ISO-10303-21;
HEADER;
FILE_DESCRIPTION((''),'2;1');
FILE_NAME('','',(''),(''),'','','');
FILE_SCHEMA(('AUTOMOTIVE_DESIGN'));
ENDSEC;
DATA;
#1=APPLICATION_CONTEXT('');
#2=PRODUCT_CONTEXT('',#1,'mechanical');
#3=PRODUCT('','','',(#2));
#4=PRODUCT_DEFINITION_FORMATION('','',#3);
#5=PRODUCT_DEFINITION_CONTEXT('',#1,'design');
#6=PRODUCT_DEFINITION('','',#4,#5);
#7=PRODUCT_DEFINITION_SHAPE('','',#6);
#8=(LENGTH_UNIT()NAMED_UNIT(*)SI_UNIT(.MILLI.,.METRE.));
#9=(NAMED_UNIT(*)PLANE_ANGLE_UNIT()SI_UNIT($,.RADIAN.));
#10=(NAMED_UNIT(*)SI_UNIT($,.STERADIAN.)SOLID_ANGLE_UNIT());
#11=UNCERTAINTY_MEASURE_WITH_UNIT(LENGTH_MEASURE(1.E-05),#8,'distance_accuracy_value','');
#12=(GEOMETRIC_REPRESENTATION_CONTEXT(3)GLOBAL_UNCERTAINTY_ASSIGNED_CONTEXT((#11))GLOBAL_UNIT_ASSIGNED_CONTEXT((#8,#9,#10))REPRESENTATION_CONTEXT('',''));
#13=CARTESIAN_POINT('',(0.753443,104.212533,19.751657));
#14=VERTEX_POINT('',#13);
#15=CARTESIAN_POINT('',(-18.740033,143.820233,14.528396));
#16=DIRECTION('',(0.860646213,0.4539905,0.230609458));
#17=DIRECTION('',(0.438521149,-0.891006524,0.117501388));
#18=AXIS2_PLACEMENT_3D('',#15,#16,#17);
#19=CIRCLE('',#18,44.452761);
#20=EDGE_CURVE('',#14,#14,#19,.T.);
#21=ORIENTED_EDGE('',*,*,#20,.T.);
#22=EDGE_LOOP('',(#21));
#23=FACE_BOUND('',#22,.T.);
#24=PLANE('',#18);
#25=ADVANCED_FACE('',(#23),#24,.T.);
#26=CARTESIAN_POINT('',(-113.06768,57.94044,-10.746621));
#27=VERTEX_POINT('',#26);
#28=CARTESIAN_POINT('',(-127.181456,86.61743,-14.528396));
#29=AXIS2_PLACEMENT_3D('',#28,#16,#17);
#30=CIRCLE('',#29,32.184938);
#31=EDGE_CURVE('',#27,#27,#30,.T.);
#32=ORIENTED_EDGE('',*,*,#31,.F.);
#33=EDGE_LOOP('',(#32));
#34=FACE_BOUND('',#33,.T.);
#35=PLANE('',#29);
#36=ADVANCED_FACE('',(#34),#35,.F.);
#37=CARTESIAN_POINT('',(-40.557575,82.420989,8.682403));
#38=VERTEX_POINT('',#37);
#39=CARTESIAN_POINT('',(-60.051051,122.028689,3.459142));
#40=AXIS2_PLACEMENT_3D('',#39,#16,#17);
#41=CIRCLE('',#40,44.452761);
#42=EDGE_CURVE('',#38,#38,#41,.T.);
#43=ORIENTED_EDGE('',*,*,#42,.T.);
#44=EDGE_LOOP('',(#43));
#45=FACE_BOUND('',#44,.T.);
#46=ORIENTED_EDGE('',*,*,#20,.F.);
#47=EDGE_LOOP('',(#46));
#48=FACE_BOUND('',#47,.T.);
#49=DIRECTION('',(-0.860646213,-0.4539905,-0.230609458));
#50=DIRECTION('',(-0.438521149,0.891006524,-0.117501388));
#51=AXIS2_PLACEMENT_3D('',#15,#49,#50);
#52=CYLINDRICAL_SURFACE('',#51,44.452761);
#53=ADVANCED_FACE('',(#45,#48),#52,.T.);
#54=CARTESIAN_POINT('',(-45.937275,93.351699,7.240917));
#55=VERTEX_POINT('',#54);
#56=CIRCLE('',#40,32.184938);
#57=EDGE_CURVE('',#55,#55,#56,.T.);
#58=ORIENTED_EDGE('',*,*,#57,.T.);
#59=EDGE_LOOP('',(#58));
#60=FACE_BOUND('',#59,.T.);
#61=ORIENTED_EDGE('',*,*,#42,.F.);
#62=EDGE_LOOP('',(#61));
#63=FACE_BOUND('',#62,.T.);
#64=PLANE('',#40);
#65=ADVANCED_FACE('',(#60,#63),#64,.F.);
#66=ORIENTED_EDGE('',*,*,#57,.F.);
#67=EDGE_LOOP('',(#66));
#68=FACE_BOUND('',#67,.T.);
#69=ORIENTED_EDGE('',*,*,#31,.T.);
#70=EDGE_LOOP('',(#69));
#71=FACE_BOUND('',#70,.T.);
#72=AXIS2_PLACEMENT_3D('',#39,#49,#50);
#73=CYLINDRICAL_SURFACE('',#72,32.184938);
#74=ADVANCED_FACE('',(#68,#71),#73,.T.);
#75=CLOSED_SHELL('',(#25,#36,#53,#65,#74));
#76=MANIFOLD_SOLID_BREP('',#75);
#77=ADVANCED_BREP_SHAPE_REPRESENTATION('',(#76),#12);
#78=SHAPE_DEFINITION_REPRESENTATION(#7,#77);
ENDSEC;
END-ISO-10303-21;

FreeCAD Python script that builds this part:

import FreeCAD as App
import Part
import Sketcher
from FreeCAD import Vector

doc = App.newDocument("Part")
body = doc.addObject("PartDesign::Body", "Body")

sketch1 = doc.addObject("Sketcher::SketchObject", "Sketch")
body.addObject(sketch1)
sketch1.AttachmentSupport = (doc.XZ_Plane, [""])
sketch1.MapMode = "FlatFace"
sketch1.addGeometry(Part.Circle(Vector(0, 0, 0), Vector(0, 0, 1), 32), False)
sketch1.addConstraint(Sketcher.Constraint("Coincident", 0, 3, -1, 1))
sketch1.addConstraint(Sketcher.Constraint("Diameter", 0, 64.369877))
pad1 = doc.addObject("PartDesign::Pad", "Pad")
body.addObject(pad1)
pad1.Profile = sketch1
pad1.Length = 78
pad1.Reversed = True

sketch2 = doc.addObject("Sketcher::SketchObject", "Sketch001")
body.addObject(sketch2)
sketch2.AttachmentSupport = (doc.XZ_Plane, [""])
sketch2.MapMode = "FlatFace"
sketch2.AttachmentOffset = App.Placement(Vector(0, 0, -78), App.Rotation())
sketch2.addGeometry(Part.Circle(Vector(0, 0, 0), Vector(0, 0, 1), 44), False)
sketch2.addConstraint(Sketcher.Constraint("Coincident", 0, 3, -1, 1))
sketch2.addConstraint(Sketcher.Constraint("Diameter", 0, 88.905522))
pad2 = doc.addObject("PartDesign::Pad", "Pad001")
body.addObject(pad2)
pad2.Profile = sketch2
pad2.Length = 48
pad2.Reversed = True
body2 = doc.addObject("PartDesign::Body", "Body001")
doc.recompute()

body.Placement = App.Placement(Vector(-72.960744, 52.218831, 0), App.Rotation(Vector(0, 0, 1), 0))
boolean = doc.addObject("PartDesign::Boolean", "Boolean")
body2.addObject(boolean)
boolean.Type = "Fuse"
boolean.addObjects([body])
body3 = doc.addObject("PartDesign::Body", "Body002")
doc.recompute()

body2.Placement = App.Placement(Vector(-153.239765, 62.910577, -97.04522), App.Rotation(Vector(0.562837469, 0.704764727, -0.43188038), 94.867085))
boolean2 = doc.addObject("PartDesign::Boolean", "Boolean001")
body3.addObject(boolean2)
boolean2.Type = "Fuse"
boolean2.addObjects([body2])

doc.recompute()
